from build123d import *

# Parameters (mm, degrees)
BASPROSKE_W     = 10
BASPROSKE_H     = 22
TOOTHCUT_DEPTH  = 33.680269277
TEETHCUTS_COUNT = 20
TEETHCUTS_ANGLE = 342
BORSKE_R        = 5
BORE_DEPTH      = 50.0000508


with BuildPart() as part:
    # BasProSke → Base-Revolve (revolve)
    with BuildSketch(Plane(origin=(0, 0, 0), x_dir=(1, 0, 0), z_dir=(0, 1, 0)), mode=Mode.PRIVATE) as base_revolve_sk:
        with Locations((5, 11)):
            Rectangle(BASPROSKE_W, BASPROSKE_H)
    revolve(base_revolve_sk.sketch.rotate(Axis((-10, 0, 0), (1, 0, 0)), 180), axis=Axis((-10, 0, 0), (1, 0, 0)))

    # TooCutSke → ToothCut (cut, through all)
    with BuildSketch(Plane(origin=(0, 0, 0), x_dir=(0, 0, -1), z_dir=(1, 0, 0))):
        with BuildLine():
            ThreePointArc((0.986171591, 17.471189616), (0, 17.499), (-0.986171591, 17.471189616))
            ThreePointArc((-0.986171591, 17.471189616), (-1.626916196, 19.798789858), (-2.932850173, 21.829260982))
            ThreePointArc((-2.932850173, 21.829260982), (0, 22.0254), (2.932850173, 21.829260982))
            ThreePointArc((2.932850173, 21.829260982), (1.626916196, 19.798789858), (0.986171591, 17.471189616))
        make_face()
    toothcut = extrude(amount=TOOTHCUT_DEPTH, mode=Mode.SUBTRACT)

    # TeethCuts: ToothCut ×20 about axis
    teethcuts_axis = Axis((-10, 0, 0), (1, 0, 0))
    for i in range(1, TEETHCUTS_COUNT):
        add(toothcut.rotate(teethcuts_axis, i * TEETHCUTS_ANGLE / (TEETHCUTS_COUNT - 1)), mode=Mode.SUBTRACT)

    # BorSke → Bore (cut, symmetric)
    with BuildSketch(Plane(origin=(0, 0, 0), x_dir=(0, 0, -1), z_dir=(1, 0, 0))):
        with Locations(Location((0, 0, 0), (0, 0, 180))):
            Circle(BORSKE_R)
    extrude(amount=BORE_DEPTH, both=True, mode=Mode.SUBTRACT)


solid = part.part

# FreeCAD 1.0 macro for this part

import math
import FreeCAD as App
import Part
import Sketcher
from FreeCAD import Vector
Q = App.Units.Quantity

doc = App.newDocument("Part")
body = doc.addObject("PartDesign::Body", "Body")

sketch1 = body.newObject("Sketcher::SketchObject", "Sketch")
sketch1.AttachmentSupport = (doc.getObject("XZ_Plane"), [""])
sketch1.MapMode = "FlatFace"
sketch1.addGeometry(Part.LineSegment(Vector(0, -22, 0), Vector(0, 0, 0)), False)
sketch1.addGeometry(Part.LineSegment(Vector(0, 0, 0), Vector(10, 0, 0)), False)
sketch1.addGeometry(Part.LineSegment(Vector(10, 0, 0), Vector(10, -22, 0)), False)
sketch1.addGeometry(Part.LineSegment(Vector(10, -22, 0), Vector(0, -22, 0)), False)
sketch1.addConstraint(Sketcher.Constraint("Coincident", 0, 2, 1, 1))
sketch1.addConstraint(Sketcher.Constraint("Coincident", 1, 2, 2, 1))
sketch1.addConstraint(Sketcher.Constraint("Coincident", 2, 2, 3, 1))
sketch1.addConstraint(Sketcher.Constraint("Coincident", 3, 2, 0, 1))
sketch1.addConstraint(Sketcher.Constraint("Vertical", 0))
sketch1.addConstraint(Sketcher.Constraint("Horizontal", 1))
sketch1.addConstraint(Sketcher.Constraint("Vertical", 2))
sketch1.addConstraint(Sketcher.Constraint("Horizontal", 3))
sketch1.addConstraint(Sketcher.Constraint("Coincident", 0, 2, -1, 1))
sketch1.addConstraint(Sketcher.Constraint("DistanceX", 1, 1, 1, 2, Q("10 mm")))
sketch1.addConstraint(Sketcher.Constraint("DistanceY", 0, 1, 0, 2, Q("22 mm")))
revolution = body.newObject("PartDesign::Revolution", "Revolution")
revolution.Profile = sketch1
revolution.ReferenceAxis = (sketch1, ["H_Axis"])
revolution.Angle = 360

sketch2 = body.newObject("Sketcher::SketchObject", "Sketch001")
sketch2.AttachmentSupport = (doc.getObject("YZ_Plane"), [""])
sketch2.MapMode = "FlatFace"
sketch2.addGeometry(Part.ArcOfCircle(Part.Circle(Vector(0, 0, 0), Vector(0, 0, 1), 17.5), math.radians(-3.23), math.radians(3.23)), False)
sketch2.addGeometry(Part.ArcOfCircle(Part.Circle(Vector(16.5, -8.9, 0), Vector(0, 0, 1), 8), math.radians(49), math.radians(83)), False)
sketch2.addGeometry(Part.ArcOfCircle(Part.Circle(Vector(0, 0, 0), Vector(0, 0, 1), 22), math.radians(-7.65), math.radians(7.65)), False)
sketch2.addGeometry(Part.ArcOfCircle(Part.Circle(Vector(16.5, 8.9, 0), Vector(0, 0, 1), 8), math.radians(-83), math.radians(-49)), False)
sketch2.addConstraint(Sketcher.Constraint("Coincident", 0, 1, 1, 2))
sketch2.addConstraint(Sketcher.Constraint("Coincident", 1, 1, 2, 1))
sketch2.addConstraint(Sketcher.Constraint("Coincident", 2, 2, 3, 2))
sketch2.addConstraint(Sketcher.Constraint("Coincident", 3, 1, 0, 2))
sketch2.addConstraint(Sketcher.Constraint("Coincident", 0, 3, -1, 1))
sketch2.addConstraint(Sketcher.Constraint("Coincident", 2, 3, -1, 1))
sketch2.addConstraint(Sketcher.Constraint("Equal", 1, 3))
sketch2.addConstraint(Sketcher.Constraint("Symmetric", 1, 3, 3, 3, -1))
sketch2.addConstraint(Sketcher.Constraint("Radius", 1, Q("8 mm")))
sketch2.addConstraint(Sketcher.Constraint("Radius", 0, Q("17.499 mm")))
sketch2.addConstraint(Sketcher.Constraint("Radius", 2, Q("22.0254 mm")))
sketch2.addConstraint(Sketcher.Constraint("DistanceY", 1, 1, 2, 2, Q("5.8657 mm")))
sketch2.addConstraint(Sketcher.Constraint("DistanceX", -1, 1, 1, 3, Q("16.536031 mm")))
pocket1 = body.newObject("PartDesign::Pocket", "Pocket")
pocket1.Profile = sketch2
pocket1.Type = "ThroughAll"
pocket1.Reversed = True
doc.recompute()

polarpattern = body.newObject("PartDesign::PolarPattern", "PolarPattern")
polarpattern.Originals = [pocket1]
polarpattern.Axis = (doc.getObject("X_Axis"), [""])
polarpattern.Angle = 360
polarpattern.Occurrences = 20
body.Tip = polarpattern

sketch3 = body.newObject("Sketcher::SketchObject", "Sketch002")
sketch3.AttachmentSupport = (doc.getObject("YZ_Plane"), [""])
sketch3.MapMode = "FlatFace"
sketch3.addGeometry(Part.Circle(Vector(0, 0, 0), Vector(0, 0, 1), 5), False)
sketch3.addConstraint(Sketcher.Constraint("Coincident", 0, 3, -1, 1))
sketch3.addConstraint(Sketcher.Constraint("Diameter", 0, Q("10 mm")))
pocket2 = body.newObject("PartDesign::Pocket", "Pocket001")
pocket2.Profile = sketch3
pocket2.Length = 100.000102
pocket2.Midplane = True

doc.recompute()
